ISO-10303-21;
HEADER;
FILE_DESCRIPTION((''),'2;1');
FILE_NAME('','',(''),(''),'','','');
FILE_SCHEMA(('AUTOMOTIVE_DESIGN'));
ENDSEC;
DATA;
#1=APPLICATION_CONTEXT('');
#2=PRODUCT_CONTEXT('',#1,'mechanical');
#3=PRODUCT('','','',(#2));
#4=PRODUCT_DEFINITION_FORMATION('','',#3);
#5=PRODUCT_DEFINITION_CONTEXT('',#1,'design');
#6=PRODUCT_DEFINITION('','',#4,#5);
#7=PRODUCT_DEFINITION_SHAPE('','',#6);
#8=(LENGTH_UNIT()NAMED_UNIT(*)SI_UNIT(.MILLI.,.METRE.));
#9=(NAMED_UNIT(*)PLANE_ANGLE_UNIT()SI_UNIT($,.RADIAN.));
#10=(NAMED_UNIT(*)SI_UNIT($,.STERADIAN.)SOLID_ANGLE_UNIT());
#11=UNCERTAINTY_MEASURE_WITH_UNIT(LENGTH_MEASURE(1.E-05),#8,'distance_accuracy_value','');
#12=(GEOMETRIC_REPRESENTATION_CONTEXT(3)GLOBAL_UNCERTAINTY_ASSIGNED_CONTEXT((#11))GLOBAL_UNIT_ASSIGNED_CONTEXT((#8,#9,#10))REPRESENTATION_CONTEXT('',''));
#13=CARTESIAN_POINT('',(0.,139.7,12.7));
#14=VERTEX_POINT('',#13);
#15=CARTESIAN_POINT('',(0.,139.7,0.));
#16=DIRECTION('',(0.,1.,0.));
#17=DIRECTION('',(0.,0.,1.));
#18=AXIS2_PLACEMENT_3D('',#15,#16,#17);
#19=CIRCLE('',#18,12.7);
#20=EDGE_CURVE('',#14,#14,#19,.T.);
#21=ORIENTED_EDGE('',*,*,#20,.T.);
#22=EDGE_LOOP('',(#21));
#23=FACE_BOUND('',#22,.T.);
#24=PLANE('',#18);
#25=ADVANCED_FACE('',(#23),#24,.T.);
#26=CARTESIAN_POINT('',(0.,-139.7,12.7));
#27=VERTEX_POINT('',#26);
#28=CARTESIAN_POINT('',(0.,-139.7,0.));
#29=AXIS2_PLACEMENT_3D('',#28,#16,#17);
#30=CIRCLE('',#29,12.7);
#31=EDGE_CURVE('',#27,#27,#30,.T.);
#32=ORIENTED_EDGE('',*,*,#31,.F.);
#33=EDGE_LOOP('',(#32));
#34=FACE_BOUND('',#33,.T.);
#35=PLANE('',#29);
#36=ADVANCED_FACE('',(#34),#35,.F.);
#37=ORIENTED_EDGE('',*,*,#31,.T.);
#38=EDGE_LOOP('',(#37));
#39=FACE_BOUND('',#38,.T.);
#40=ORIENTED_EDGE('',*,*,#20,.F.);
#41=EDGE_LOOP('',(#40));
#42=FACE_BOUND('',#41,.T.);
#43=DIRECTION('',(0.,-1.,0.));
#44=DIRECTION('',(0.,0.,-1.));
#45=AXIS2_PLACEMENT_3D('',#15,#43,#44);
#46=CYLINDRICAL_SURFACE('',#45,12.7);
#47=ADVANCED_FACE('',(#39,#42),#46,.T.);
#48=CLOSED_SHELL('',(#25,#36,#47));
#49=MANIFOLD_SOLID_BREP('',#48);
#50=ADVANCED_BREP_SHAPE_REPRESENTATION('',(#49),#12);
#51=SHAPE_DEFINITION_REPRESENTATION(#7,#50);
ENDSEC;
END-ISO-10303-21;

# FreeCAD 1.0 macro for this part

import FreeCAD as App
import Part
import Sketcher
Q = App.Units.Quantity

doc = App.newDocument("Part")
body = doc.addObject("PartDesign::Body", "Body")

sketch1 = body.newObject("Sketcher::SketchObject", "Sketch")
sketch1.AttachmentSupport = (doc.getObject("XZ_Plane"), [""])
sketch1.MapMode = "FlatFace"
sketch1.addGeometry(Part.Circle(App.Vector(0, 0, 0), App.Vector(0, 0, 1), 13), False)
sketch1.addConstraint([
    Sketcher.Constraint("Coincident", 0, 3, -1, 1),
    Sketcher.Constraint("Diameter", 0, Q("1 in")),
])
pad1 = body.newObject("PartDesign::Pad", "Pad")
pad1.Profile = sketch1
pad1.Length = Q("11 in")
pad1.Midplane = True

doc.recompute()
